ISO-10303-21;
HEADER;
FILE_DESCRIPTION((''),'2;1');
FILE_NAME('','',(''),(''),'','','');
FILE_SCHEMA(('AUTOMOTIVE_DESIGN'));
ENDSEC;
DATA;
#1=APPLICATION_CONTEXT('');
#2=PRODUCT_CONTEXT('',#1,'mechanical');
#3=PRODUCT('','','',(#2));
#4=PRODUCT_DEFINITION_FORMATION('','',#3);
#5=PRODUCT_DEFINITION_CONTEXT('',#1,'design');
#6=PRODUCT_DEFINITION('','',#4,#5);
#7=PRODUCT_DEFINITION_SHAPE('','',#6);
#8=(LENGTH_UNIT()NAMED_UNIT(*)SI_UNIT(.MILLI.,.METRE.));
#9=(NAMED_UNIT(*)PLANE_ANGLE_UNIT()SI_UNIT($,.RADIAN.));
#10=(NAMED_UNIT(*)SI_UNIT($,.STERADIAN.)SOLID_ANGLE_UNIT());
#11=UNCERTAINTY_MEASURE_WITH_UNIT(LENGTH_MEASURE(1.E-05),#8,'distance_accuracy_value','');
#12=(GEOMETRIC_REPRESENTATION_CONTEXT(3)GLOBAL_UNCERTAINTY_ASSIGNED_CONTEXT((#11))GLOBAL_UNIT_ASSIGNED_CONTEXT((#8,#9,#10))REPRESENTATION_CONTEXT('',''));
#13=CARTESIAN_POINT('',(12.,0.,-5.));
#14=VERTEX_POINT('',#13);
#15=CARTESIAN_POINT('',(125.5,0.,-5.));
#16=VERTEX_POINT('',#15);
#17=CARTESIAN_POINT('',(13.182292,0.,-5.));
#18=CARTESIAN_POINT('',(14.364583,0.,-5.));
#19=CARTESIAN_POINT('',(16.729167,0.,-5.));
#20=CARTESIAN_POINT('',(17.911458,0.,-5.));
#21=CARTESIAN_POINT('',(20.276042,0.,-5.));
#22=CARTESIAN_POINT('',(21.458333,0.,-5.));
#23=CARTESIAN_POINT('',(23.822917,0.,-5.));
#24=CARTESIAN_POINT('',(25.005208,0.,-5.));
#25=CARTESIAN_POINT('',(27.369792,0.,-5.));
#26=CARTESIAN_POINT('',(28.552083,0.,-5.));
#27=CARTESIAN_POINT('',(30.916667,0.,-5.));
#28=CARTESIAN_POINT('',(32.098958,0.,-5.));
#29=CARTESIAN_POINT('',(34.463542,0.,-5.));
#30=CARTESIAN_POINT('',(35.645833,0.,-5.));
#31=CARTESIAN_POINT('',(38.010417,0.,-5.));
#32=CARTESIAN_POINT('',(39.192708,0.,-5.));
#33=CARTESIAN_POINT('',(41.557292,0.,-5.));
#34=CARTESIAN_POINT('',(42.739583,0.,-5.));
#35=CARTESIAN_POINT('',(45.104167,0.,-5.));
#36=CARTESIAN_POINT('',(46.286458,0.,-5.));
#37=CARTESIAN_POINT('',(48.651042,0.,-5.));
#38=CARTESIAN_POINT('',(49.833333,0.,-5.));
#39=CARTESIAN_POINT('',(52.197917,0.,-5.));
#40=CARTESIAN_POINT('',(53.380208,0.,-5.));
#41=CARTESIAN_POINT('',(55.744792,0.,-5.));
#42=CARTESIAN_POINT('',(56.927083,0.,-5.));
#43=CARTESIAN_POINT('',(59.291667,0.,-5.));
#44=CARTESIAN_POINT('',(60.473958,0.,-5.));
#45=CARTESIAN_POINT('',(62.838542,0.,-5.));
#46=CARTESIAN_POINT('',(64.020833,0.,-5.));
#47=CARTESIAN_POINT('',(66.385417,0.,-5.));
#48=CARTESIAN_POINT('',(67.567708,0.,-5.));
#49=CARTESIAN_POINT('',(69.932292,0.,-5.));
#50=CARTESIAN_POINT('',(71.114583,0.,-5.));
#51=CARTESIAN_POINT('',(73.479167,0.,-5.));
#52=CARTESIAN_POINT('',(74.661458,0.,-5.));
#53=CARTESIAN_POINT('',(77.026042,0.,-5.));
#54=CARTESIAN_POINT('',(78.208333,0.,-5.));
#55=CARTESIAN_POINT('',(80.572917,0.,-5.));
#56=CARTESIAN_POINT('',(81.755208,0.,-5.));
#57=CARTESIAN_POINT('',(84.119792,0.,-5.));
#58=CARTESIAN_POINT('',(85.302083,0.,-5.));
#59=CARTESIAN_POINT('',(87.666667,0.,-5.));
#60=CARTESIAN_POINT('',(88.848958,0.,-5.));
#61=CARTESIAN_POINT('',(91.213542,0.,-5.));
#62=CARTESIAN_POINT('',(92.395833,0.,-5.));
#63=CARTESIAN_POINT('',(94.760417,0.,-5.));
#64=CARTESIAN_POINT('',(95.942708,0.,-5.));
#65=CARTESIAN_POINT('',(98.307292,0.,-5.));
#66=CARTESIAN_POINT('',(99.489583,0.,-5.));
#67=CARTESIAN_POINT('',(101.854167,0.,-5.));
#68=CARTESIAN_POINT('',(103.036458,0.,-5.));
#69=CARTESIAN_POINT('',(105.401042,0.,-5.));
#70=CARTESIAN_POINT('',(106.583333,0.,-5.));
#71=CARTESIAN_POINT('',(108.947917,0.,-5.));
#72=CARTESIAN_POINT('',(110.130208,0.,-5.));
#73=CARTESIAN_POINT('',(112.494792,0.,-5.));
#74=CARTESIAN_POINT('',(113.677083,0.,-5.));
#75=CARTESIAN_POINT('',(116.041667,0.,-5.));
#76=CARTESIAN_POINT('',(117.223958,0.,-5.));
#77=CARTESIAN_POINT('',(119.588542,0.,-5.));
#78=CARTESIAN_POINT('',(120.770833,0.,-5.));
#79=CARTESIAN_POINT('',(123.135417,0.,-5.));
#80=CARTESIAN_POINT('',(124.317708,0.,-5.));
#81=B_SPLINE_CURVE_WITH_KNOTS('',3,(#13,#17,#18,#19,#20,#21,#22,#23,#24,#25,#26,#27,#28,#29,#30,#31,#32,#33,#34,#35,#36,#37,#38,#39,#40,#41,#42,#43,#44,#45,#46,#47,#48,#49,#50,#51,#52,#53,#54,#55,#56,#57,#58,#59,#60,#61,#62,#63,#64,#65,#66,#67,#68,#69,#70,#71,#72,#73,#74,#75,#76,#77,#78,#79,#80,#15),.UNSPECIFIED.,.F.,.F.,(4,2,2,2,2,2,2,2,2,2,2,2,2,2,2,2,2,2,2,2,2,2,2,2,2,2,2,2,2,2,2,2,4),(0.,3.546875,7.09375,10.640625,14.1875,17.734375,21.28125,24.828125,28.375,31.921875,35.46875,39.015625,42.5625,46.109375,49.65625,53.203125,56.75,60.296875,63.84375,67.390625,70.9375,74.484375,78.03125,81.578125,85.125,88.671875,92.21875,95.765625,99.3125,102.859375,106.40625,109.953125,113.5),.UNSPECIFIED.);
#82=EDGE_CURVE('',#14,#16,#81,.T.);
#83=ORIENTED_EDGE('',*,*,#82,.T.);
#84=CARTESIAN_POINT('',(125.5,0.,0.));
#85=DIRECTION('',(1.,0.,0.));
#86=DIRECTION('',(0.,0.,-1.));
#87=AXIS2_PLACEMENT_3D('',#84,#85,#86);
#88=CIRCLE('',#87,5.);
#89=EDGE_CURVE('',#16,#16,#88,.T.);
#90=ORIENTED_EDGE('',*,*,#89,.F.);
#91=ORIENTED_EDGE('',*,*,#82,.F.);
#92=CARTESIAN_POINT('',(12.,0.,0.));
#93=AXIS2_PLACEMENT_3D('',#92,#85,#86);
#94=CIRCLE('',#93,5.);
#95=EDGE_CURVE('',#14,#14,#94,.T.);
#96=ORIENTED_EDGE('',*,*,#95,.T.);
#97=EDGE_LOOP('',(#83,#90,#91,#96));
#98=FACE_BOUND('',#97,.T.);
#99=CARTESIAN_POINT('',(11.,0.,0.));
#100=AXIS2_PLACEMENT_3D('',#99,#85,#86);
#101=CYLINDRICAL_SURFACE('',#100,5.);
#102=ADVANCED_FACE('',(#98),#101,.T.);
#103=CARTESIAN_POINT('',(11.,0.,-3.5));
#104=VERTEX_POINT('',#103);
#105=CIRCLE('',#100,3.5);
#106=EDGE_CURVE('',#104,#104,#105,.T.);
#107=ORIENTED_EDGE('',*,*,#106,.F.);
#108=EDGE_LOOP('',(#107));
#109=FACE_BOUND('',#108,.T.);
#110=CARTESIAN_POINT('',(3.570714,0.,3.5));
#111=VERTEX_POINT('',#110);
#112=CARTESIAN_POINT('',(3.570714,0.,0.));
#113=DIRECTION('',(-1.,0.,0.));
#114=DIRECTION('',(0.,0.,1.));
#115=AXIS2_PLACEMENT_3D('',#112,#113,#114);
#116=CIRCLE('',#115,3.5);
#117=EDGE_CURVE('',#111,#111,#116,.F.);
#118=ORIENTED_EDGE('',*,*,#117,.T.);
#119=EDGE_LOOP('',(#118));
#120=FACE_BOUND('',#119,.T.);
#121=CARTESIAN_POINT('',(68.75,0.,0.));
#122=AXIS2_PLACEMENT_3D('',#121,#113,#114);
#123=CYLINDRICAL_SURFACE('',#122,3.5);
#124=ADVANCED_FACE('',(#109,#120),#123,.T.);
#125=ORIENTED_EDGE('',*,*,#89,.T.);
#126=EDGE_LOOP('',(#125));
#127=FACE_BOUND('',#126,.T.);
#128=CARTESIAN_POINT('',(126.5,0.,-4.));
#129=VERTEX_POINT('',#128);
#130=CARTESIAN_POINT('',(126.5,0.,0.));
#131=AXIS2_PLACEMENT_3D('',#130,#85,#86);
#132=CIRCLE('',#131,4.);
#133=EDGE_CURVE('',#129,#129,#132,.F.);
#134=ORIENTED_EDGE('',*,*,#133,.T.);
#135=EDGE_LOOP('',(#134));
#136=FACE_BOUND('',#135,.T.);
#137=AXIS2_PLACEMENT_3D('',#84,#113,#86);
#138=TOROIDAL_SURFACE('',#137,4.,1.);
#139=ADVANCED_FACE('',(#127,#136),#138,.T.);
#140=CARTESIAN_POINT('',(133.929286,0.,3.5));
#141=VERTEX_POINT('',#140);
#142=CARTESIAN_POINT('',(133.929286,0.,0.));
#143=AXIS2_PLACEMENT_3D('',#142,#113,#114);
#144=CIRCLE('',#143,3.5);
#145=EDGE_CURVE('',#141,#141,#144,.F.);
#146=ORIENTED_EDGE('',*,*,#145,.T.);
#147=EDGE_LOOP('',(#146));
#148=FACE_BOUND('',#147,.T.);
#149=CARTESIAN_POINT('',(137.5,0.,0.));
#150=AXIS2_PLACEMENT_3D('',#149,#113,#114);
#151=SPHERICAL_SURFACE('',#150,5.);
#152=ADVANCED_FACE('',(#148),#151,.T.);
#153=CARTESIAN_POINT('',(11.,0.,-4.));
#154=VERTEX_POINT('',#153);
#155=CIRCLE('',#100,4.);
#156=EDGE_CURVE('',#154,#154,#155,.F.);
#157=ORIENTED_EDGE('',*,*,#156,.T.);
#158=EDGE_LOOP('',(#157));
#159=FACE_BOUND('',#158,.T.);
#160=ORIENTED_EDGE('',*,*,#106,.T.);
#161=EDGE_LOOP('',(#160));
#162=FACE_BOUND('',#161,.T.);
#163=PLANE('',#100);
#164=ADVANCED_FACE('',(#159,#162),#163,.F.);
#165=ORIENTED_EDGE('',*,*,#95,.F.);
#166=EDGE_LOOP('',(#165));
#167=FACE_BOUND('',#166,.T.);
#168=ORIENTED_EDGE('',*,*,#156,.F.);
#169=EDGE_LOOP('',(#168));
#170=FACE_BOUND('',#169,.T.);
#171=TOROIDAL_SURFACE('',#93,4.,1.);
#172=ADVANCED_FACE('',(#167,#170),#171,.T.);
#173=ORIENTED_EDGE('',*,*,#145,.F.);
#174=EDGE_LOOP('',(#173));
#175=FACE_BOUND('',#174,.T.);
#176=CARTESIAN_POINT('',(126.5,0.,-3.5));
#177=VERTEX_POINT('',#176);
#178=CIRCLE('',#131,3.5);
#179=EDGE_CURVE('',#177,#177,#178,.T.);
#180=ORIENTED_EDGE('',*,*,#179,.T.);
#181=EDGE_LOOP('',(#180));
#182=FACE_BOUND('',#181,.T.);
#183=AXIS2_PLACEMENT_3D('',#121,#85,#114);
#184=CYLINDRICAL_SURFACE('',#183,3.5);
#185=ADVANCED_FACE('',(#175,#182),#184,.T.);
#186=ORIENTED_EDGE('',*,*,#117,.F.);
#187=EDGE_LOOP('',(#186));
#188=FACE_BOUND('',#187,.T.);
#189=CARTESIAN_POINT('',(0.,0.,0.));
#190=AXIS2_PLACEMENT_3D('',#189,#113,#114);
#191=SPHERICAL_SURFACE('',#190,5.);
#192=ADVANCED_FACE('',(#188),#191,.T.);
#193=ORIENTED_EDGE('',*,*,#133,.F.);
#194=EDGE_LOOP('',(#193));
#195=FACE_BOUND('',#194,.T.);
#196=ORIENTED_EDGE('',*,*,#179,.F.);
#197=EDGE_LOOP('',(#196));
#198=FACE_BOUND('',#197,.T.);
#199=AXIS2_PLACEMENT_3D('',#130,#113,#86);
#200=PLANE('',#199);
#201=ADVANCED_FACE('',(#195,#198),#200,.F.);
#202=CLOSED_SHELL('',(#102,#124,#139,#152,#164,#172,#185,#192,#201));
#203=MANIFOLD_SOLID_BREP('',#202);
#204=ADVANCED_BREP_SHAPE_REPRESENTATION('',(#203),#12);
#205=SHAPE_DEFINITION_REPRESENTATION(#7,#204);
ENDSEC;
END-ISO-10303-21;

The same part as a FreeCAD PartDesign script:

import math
import FreeCAD as App
import Part
import Sketcher
from FreeCAD import Vector


def edges_at(feature, points):
    """Names of the edges that pass closest to the given points."""
    edges = feature.Shape.Edges
    near = lambda p: min(range(len(edges)), key=lambda i: edges[i].distToShape(Part.Vertex(*p))[0])
    return sorted({f"Edge{near(p) + 1}" for p in points})

doc = App.newDocument("Part")
body = doc.addObject("PartDesign::Body", "Body")

# Sketch on XZ plane
sketch1 = body.newObject("Sketcher::SketchObject", "Sketch")
sketch1.AttachmentSupport = (doc.getObject("XZ_Plane"), [""])
sketch1.MapMode = "FlatFace"
sketch1.addGeometry(Part.LineSegment(Vector(0, -5, 0), Vector(0, 5, 0)), False)
sketch1.addGeometry(Part.ArcOfCircle(Part.Circle(Vector(0, 0, 0), Vector(0, 0, 1), 5), math.radians(-90), math.radians(90)), False)
sketch1.addConstraint(Sketcher.Constraint("Coincident", 0, 1, 1, 1))
sketch1.addConstraint(Sketcher.Constraint("Coincident", 1, 2, 0, 2))
sketch1.addConstraint(Sketcher.Constraint("Vertical", 0))
sketch1.addConstraint(Sketcher.Constraint("Coincident", 1, 3, -1, 1))
sketch1.addConstraint(Sketcher.Constraint("PointOnObject", 0, 1, -2))
sketch1.addConstraint(Sketcher.Constraint("Radius", 1, 5.0))
revolution = body.newObject("PartDesign::Revolution", "Revolution")
revolution.Profile = sketch1
revolution.ReferenceAxis = (sketch1, ["V_Axis"])
revolution.Angle = 360

# Sketch on YZ plane
sketch2 = body.newObject("Sketcher::SketchObject", "Sketch001")
sketch2.AttachmentSupport = (doc.getObject("YZ_Plane"), [""])
sketch2.MapMode = "FlatFace"
sketch2.addGeometry(Part.Circle(Vector(0, 0, 0), Vector(0, 0, 1), 3.5), False)
sketch2.addConstraint(Sketcher.Constraint("Coincident", 0, 3, -1, 1))
sketch2.addConstraint(Sketcher.Constraint("Diameter", 0, 7.0))
pad1 = body.newObject("PartDesign::Pad", "Pad")
pad1.Profile = sketch2
pad1.Length = 68.75

# Sketch on YZ plane
sketch3 = body.newObject("Sketcher::SketchObject", "Sketch002")
sketch3.AttachmentSupport = (doc.getObject("YZ_Plane"), [""])
sketch3.MapMode = "FlatFace"
sketch3.AttachmentOffset = App.Placement(Vector(0, 0, 68.75), App.Rotation())
sketch3.addGeometry(Part.Circle(Vector(0, 0, 0), Vector(0, 0, 1), 5), False)
sketch3.addConstraint(Sketcher.Constraint("Coincident", 0, 3, -1, 1))
sketch3.addConstraint(Sketcher.Constraint("Diameter", 0, 10.0))
pad2 = body.newObject("PartDesign::Pad", "Pad001")
pad2.Profile = sketch3
pad2.Length = 57.75
pad2.Reversed = True
doc.recompute()

fillet = body.newObject("PartDesign::Fillet", "Fillet")
fillet.Base = (pad2, edges_at(pad2, [(11, 0, 5)]))
fillet.Radius = 1
body2 = doc.addObject("PartDesign::Body", "Body001")
doc.recompute()

body2.BaseFeature = body
doc.recompute()

mirroring = doc.addObject("Part::Mirroring", "Mirroring")
mirroring.Source = body
mirroring.Base = Vector(68.75, 0, 0)
mirroring.Normal = Vector(1, 0, 0)
body3 = doc.addObject("PartDesign::Body", "Body002")
body3.BaseFeature = mirroring
boolean = body2.newObject("PartDesign::Boolean", "Boolean")
boolean.Type = "Fuse"
boolean.addObjects([body3])
doc.recompute()
mirroring.Visibility = False

doc.recompute()
